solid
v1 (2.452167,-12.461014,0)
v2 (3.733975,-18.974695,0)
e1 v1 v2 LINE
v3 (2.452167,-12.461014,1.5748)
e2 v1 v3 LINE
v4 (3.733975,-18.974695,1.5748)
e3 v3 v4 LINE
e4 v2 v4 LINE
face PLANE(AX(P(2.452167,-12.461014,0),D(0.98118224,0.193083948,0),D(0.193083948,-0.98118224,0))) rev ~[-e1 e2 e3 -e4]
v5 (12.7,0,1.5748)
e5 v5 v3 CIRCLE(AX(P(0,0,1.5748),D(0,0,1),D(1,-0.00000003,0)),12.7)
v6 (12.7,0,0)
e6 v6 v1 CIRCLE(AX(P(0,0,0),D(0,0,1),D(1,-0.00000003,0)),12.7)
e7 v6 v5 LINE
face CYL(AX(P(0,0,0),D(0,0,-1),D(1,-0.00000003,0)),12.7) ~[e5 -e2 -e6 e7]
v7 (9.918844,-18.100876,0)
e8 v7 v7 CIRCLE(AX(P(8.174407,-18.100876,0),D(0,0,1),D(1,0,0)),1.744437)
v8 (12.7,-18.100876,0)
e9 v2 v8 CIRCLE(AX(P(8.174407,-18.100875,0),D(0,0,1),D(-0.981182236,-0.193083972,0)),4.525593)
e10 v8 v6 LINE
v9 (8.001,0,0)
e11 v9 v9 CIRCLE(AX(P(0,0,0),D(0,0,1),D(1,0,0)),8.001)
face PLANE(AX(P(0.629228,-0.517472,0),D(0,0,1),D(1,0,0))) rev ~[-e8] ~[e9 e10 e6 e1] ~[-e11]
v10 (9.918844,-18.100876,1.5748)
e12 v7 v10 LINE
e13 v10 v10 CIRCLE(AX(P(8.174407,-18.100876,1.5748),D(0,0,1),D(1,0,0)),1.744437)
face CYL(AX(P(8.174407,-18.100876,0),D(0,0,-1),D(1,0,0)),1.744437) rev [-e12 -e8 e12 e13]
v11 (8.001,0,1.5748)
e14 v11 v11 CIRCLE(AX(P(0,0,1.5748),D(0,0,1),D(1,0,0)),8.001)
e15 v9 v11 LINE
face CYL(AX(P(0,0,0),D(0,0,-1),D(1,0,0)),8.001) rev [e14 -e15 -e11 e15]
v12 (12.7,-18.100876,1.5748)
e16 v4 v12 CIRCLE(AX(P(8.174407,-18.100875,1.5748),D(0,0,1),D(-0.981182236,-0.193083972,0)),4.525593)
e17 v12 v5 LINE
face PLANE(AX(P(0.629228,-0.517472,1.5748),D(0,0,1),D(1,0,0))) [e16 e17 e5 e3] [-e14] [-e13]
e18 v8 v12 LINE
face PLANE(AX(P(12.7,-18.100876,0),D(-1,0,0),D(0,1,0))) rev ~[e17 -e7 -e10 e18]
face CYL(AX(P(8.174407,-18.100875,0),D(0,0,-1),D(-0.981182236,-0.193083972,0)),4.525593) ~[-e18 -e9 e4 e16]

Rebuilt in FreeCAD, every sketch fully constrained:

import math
import FreeCAD as App
import Part
import Sketcher
from FreeCAD import Vector
Q = App.Units.Quantity

doc = App.newDocument("Part")
body = doc.addObject("PartDesign::Body", "Body")

# Sketch on XY plane
sketch1 = body.newObject("Sketcher::SketchObject", "Sketch")
sketch1.AttachmentSupport = (doc.getObject("XY_Plane"), [""])
sketch1.MapMode = "FlatFace"
sketch1.addGeometry([
    Part.ArcOfCircle(Part.Circle(Vector(0, 0, 0), Vector(0, 0, 1), 12.7), math.radians(0), math.radians(281)),  # 0
    Part.LineSegment(Vector(2.5, -12.5, 0), Vector(3.7, -19, 0)),  # 1
    Part.ArcOfCircle(Part.Circle(Vector(8.2, -18.1, 0), Vector(0, 0, 1), 4.5), math.radians(-169), math.radians(0)),  # 2
    Part.LineSegment(Vector(12.7, -18.1, 0), Vector(12.7, 0, 0)),  # 3
    Part.Circle(Vector(8.2, -18.1, 0), Vector(0, 0, 1), 1.7),  # 4
    Part.Circle(Vector(0, 0, 0), Vector(0, 0, 1), 8),  # 5
], False)
sketch1.addConstraint([
    Sketcher.Constraint("Coincident", 0, 2, 1, 1),
    Sketcher.Constraint("Tangent", 1, 2, 2, 1),
    Sketcher.Constraint("Tangent", 2, 2, 3, 1),
    Sketcher.Constraint("Tangent", 3, 2, 0, 1),
    Sketcher.Constraint("Vertical", 3),
    Sketcher.Constraint("Coincident", 0, 3, -1, 1),
    Sketcher.Constraint("Coincident", 5, 3, -1, 1),
    Sketcher.Constraint("Coincident", 4, 3, 2, 3),
    Sketcher.Constraint("Radius", 0, Q("0.5 in")),
    Sketcher.Constraint("Diameter", 5, Q("0.63 in")),
    Sketcher.Constraint("Diameter", 4, 3.488874),
    Sketcher.Constraint("Radius", 2, 4.525593),
    Sketcher.Constraint("DistanceY", 3, 1, 3, 2, 18.100876),
    Sketcher.Constraint("DistanceX", 0, 2, 2, 3, 5.72224),
])
pad1 = body.newObject("PartDesign::Pad", "Pad")
pad1.Profile = sketch1
pad1.Length = Q("0.062 in")

doc.recompute()
